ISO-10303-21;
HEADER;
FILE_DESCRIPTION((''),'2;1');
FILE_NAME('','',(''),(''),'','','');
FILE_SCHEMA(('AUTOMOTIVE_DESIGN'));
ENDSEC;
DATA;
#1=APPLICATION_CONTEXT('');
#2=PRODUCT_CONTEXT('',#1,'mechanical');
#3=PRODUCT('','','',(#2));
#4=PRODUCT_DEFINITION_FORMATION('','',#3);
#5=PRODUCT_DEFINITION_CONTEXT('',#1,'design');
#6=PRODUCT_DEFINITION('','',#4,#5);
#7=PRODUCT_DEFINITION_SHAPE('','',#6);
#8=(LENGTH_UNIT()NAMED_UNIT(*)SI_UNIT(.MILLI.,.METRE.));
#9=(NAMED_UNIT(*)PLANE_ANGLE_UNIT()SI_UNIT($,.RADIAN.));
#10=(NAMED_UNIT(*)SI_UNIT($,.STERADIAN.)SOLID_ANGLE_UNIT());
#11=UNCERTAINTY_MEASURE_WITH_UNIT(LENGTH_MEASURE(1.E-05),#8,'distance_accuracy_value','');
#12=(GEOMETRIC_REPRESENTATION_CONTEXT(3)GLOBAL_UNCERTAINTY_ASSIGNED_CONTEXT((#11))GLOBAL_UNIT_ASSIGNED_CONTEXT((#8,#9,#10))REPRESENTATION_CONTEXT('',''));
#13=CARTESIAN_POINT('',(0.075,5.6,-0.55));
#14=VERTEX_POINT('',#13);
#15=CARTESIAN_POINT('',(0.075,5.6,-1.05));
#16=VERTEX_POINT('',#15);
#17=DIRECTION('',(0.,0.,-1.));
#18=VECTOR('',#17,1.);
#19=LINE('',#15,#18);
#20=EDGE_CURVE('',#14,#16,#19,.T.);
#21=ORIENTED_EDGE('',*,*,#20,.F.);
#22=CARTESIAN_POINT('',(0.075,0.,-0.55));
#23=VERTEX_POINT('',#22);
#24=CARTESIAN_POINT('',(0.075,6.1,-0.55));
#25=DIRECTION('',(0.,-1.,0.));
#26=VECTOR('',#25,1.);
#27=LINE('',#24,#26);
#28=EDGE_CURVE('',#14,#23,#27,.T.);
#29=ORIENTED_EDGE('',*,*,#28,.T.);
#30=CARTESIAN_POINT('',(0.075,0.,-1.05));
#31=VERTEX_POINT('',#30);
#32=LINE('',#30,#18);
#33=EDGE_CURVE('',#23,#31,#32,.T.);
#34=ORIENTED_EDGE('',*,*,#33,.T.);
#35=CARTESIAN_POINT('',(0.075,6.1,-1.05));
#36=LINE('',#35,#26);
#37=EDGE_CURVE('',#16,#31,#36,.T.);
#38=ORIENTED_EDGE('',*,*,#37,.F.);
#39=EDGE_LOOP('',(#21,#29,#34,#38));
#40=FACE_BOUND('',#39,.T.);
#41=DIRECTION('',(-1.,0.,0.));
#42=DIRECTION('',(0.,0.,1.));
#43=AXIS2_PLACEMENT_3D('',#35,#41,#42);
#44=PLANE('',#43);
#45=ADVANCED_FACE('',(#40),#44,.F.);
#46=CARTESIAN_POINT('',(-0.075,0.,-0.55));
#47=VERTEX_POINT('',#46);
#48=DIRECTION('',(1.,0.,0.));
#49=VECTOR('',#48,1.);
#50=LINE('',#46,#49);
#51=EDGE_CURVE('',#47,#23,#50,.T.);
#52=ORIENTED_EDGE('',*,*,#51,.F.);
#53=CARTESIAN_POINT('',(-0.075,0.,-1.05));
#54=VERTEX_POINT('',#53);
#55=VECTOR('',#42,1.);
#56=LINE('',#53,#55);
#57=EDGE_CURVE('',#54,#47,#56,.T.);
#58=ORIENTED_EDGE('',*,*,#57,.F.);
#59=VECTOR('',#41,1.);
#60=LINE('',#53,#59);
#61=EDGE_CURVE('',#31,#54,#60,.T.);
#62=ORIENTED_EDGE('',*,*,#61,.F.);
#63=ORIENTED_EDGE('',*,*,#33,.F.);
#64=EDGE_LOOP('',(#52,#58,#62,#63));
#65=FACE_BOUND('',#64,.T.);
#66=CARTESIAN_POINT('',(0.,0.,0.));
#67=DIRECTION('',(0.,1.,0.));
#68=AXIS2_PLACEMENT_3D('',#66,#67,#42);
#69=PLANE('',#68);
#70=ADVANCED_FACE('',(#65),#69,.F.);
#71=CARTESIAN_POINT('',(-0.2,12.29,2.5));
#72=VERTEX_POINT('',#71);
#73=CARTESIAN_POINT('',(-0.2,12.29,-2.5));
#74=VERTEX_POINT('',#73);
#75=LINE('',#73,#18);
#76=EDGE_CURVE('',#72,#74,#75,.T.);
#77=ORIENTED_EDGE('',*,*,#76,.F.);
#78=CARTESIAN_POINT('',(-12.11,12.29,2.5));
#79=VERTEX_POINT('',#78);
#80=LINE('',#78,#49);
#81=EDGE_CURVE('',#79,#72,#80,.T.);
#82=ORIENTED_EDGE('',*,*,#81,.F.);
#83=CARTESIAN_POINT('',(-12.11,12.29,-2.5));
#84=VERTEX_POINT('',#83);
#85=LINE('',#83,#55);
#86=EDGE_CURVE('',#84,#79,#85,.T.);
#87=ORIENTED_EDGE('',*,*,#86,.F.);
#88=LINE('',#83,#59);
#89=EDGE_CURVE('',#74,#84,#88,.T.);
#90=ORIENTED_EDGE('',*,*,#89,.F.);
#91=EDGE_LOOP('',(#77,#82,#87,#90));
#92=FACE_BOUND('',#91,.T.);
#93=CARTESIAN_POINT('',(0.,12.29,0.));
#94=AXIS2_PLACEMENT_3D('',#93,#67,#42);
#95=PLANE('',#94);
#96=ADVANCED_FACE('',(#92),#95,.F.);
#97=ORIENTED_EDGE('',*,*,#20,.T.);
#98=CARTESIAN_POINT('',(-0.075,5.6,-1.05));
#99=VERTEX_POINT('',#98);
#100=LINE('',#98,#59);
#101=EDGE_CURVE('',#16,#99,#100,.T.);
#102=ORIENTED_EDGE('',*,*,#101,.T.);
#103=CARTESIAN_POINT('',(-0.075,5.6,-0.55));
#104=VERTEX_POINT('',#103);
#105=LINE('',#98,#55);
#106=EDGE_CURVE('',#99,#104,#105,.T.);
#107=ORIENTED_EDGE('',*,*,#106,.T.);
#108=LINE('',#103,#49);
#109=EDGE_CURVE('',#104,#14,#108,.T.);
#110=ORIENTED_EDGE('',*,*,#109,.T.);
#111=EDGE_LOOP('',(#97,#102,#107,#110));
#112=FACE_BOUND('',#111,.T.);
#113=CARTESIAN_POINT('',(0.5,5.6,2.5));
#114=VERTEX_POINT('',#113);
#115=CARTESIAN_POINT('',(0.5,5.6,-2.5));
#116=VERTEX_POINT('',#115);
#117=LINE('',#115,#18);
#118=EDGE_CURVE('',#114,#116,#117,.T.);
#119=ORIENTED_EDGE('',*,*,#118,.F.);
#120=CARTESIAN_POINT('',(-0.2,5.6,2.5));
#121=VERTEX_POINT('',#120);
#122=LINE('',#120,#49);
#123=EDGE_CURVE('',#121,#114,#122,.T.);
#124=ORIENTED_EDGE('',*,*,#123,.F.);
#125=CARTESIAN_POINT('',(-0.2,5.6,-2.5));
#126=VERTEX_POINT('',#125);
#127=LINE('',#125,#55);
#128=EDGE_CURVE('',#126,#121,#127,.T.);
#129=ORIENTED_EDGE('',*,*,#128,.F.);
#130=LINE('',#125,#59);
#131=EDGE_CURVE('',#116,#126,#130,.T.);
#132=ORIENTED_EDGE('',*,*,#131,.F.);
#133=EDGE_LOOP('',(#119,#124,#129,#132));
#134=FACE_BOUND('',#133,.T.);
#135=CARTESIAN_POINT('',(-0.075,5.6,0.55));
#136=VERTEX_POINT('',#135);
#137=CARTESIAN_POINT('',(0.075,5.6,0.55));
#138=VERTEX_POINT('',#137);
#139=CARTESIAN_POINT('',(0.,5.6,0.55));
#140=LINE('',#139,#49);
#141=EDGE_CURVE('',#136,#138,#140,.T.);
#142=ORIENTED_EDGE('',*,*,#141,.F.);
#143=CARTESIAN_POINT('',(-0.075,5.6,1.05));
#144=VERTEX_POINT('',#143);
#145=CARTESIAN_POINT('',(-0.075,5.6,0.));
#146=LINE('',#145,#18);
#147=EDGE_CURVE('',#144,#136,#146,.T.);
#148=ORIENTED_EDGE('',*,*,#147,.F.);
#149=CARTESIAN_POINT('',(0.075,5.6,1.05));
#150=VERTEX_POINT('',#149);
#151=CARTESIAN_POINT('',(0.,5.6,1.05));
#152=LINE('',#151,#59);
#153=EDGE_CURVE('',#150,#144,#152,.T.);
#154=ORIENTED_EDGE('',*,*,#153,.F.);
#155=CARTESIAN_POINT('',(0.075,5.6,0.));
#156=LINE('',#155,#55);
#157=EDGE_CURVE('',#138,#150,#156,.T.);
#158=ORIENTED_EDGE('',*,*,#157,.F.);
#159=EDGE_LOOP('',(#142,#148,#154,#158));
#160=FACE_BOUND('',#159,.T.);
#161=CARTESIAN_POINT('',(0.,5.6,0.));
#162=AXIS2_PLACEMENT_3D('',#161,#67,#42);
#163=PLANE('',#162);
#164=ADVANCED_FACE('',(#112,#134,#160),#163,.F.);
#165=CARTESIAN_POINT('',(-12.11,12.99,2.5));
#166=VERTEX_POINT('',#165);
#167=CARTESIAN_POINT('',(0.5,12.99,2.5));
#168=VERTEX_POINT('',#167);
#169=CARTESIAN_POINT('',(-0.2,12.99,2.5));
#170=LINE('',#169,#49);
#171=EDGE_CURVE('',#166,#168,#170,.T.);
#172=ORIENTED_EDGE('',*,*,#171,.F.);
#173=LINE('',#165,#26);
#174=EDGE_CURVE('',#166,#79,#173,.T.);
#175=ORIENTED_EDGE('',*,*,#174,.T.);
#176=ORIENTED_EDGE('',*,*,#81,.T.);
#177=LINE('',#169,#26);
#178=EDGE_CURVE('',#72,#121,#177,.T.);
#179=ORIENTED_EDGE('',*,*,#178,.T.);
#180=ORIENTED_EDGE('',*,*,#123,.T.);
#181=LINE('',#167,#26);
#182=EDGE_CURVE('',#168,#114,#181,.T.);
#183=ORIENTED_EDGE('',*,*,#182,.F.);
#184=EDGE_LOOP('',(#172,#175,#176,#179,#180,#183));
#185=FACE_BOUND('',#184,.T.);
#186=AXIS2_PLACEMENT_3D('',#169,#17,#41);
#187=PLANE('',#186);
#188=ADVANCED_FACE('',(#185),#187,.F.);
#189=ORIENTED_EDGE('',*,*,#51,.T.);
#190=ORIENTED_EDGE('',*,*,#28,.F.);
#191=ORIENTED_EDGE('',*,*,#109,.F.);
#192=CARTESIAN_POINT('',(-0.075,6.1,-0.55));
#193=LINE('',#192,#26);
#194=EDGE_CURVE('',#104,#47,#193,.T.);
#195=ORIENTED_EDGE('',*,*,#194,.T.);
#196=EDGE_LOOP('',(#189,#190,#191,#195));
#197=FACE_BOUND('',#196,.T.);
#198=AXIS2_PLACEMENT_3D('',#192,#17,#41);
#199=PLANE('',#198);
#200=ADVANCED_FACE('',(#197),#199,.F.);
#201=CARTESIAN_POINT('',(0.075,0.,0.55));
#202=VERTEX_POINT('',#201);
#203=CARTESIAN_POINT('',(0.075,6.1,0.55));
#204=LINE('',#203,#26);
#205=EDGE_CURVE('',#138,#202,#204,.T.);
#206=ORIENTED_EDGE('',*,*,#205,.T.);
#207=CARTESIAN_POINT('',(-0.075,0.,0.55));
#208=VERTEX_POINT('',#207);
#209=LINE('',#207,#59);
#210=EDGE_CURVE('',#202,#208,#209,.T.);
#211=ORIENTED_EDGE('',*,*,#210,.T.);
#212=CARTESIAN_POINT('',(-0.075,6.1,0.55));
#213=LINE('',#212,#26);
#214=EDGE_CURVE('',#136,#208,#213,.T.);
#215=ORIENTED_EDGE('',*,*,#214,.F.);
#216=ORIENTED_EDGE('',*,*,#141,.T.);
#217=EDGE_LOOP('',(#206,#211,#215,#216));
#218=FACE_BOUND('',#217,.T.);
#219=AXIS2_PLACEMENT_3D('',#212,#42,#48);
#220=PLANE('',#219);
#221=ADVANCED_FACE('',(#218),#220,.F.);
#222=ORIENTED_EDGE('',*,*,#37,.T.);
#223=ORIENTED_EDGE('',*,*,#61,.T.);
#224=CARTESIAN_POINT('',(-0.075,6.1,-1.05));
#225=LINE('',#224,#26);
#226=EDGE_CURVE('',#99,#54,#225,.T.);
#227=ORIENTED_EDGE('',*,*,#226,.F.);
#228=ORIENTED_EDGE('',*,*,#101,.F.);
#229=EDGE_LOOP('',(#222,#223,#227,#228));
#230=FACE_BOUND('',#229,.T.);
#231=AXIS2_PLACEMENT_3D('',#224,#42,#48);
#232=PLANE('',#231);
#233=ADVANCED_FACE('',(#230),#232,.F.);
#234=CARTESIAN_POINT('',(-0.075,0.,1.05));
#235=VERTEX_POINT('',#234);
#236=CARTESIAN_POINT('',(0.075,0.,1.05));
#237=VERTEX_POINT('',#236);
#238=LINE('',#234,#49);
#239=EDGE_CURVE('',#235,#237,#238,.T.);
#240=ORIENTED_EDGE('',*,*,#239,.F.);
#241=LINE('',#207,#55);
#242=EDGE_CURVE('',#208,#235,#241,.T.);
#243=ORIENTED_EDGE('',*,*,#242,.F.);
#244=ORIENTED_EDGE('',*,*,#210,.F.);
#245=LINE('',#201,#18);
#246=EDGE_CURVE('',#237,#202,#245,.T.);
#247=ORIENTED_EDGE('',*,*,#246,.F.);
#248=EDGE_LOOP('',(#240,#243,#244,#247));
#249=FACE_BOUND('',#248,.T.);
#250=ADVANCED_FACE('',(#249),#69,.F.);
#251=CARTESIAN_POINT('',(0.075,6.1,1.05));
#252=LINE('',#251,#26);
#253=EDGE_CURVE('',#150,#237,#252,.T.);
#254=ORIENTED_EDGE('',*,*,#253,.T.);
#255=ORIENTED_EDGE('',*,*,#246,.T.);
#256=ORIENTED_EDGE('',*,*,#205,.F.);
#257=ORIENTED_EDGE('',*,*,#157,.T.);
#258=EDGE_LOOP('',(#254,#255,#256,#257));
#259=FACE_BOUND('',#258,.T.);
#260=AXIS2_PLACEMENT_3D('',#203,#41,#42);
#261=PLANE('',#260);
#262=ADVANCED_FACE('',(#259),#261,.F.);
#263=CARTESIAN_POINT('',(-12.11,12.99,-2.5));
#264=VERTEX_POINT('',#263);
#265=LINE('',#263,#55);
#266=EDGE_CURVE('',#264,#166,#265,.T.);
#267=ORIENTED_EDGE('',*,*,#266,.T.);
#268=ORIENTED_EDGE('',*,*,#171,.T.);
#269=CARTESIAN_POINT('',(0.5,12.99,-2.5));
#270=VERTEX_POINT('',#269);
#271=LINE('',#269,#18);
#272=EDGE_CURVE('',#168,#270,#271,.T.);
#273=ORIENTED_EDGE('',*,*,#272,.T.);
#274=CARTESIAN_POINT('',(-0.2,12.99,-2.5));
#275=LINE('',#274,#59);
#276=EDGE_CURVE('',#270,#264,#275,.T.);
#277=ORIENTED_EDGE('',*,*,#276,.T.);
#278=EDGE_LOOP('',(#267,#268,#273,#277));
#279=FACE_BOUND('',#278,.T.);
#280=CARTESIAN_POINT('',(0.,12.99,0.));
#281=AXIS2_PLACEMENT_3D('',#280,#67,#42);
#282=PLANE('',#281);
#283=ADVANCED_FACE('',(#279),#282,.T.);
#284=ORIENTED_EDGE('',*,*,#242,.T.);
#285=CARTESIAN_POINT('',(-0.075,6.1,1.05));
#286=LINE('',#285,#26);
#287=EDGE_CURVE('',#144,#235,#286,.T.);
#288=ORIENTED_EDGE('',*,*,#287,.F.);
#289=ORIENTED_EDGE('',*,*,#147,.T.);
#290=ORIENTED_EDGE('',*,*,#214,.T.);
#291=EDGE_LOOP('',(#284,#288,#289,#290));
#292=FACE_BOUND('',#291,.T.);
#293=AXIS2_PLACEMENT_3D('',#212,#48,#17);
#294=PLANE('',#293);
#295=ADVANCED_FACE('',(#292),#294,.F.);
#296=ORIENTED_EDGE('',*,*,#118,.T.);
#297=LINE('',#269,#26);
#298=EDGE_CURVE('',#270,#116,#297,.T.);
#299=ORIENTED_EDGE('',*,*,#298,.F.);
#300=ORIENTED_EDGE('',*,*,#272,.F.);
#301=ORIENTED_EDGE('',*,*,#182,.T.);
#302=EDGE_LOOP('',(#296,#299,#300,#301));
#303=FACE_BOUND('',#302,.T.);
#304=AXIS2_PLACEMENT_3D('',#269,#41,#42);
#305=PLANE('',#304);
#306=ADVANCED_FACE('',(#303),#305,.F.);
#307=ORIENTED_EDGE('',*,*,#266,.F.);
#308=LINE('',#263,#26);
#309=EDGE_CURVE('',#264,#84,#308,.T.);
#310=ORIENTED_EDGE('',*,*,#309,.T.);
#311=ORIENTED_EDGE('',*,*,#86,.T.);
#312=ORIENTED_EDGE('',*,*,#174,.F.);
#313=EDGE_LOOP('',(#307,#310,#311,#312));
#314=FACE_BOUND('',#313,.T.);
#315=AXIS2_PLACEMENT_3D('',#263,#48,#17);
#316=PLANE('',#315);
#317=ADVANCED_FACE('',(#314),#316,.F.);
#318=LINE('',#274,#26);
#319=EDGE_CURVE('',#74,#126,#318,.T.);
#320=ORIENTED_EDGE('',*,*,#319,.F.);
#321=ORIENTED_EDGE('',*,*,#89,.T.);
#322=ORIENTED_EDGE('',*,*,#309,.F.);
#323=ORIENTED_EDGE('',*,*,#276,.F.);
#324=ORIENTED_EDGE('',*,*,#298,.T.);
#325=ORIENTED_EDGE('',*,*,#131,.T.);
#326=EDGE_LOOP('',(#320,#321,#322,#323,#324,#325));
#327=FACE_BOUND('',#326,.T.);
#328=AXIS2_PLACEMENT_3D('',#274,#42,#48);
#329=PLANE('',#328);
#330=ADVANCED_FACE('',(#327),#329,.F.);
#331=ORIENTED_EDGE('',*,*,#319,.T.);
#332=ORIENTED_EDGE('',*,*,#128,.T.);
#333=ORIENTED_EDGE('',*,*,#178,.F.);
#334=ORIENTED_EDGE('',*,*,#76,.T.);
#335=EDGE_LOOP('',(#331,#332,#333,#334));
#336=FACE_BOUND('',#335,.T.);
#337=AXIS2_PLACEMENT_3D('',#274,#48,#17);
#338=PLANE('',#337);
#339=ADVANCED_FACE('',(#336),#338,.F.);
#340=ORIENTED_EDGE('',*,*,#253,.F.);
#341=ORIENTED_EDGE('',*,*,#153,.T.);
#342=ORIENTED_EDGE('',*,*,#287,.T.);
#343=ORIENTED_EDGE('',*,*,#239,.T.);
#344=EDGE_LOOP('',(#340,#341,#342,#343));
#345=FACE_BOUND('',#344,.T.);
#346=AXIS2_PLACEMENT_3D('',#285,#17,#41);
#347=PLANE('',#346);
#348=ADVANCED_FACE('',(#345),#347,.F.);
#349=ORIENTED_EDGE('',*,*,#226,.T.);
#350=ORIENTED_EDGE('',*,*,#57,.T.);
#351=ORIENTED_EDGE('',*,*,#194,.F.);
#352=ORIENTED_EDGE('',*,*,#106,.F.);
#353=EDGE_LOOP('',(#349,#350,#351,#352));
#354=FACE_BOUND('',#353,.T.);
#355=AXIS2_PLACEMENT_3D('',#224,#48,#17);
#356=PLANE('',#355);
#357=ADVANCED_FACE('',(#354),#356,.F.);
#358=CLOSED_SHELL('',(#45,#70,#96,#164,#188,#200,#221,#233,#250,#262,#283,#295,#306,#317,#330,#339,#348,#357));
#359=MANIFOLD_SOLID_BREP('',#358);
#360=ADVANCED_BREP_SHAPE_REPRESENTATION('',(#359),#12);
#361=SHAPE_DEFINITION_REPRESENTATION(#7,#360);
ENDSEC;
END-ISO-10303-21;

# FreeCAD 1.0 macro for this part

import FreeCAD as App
import Part
import Sketcher
from FreeCAD import Vector
Q = App.Units.Quantity


def add_polygon(sketch, points):
    """Adds a closed chain of lines whose ends are joined by coincident constraints."""
    first, n = sketch.GeometryCount, len(points)
    for a, b in zip(points, points[1:] + points[:1]):
        sketch.addGeometry(Part.LineSegment(App.Vector(*a, 0), App.Vector(*b, 0)), False)
    for i in range(n):
        sketch.addConstraint(Sketcher.Constraint("Coincident", first + i, 2, first + (i + 1) % n, 1))

doc = App.newDocument("Part")
body = doc.addObject("PartDesign::Body", "Body")

sketch1 = body.newObject("Sketcher::SketchObject", "Sketch")
sketch1.AttachmentSupport = (doc.getObject("XZ_Plane"), [""])
sketch1.MapMode = "FlatFace"
add_polygon(sketch1, [(-0.075, -1.05), (-0.075, -0.55), (0.075, -0.55), (0.075, -1.05)])
sketch1.addConstraint(Sketcher.Constraint("Vertical", 0))
sketch1.addConstraint(Sketcher.Constraint("Horizontal", 1))
sketch1.addConstraint(Sketcher.Constraint("Vertical", 2))
sketch1.addConstraint(Sketcher.Constraint("Horizontal", 3))
sketch1.addConstraint(Sketcher.Constraint("DistanceY", 0, 1, 0, 2, Q("0.5 mm")))
sketch1.addConstraint(Sketcher.Constraint("DistanceX", 1, 1, 1, 2, Q("0.15 mm")))
sketch1.addConstraint(Sketcher.Constraint("DistanceY", 0, 2, -1, 1, Q("0.55 mm")))
sketch1.addConstraint(Sketcher.Constraint("DistanceX", 0, 2, -1, 1, Q("0.075 mm")))
pad1 = body.newObject("PartDesign::Pad", "Pad")
pad1.Profile = sketch1
pad1.Length = 6.1
pad1.Reversed = True
body2 = doc.addObject("PartDesign::Body", "Body001")

sketch2 = body2.newObject("Sketcher::SketchObject", "Sketch001")
sketch2.AttachmentSupport = (doc.getObject("XZ_Plane001"), [""])
sketch2.MapMode = "FlatFace"
add_polygon(sketch2, [(-0.075, 0.55), (-0.075, 1.05), (0.075, 1.05), (0.075, 0.55)])
sketch2.addConstraint(Sketcher.Constraint("Vertical", 0))
sketch2.addConstraint(Sketcher.Constraint("Horizontal", 1))
sketch2.addConstraint(Sketcher.Constraint("Vertical", 2))
sketch2.addConstraint(Sketcher.Constraint("Horizontal", 3))
sketch2.addConstraint(Sketcher.Constraint("DistanceY", 0, 1, 0, 2, Q("0.5 mm")))
sketch2.addConstraint(Sketcher.Constraint("DistanceX", 1, 1, 1, 2, Q("0.15 mm")))
sketch2.addConstraint(Sketcher.Constraint("DistanceY", -1, 1, 0, 2, Q("1.05 mm")))
sketch2.addConstraint(Sketcher.Constraint("DistanceX", 0, 2, -1, 1, Q("0.075 mm")))
pad2 = body2.newObject("PartDesign::Pad", "Pad001")
pad2.Profile = sketch2
pad2.Length = 6.1
pad2.Reversed = True
body.AllowCompound = True
doc.recompute()

boolean = body.newObject("PartDesign::Boolean", "Boolean")
boolean.Type = "Fuse"
boolean.addObjects([body2])

sketch3 = body.newObject("Sketcher::SketchObject", "Sketch002")
sketch3.AttachmentSupport = (doc.getObject("XZ_Plane"), [""])
sketch3.MapMode = "FlatFace"
sketch3.AttachmentOffset = App.Placement(Vector(0, 0, -5.6), App.Rotation())
add_polygon(sketch3, [(-0.2, -2.5), (-0.2, 2.5), (0.5, 2.5), (0.5, -2.5)])
sketch3.addConstraint(Sketcher.Constraint("Vertical", 0))
sketch3.addConstraint(Sketcher.Constraint("Horizontal", 1))
sketch3.addConstraint(Sketcher.Constraint("Vertical", 2))
sketch3.addConstraint(Sketcher.Constraint("Horizontal", 3))
sketch3.addConstraint(Sketcher.Constraint("DistanceY", 0, 1, 0, 2, Q("5 mm")))
sketch3.addConstraint(Sketcher.Constraint("DistanceX", 1, 1, 1, 2, Q("0.7 mm")))
sketch3.addConstraint(Sketcher.Constraint("DistanceX", 0, 2, -1, 1, Q("0.2 mm")))
sketch3.addConstraint(Sketcher.Constraint("DistanceY", -1, 1, 0, 2, Q("2.5 mm")))
pad3 = body.newObject("PartDesign::Pad", "Pad002")
pad3.Profile = sketch3
pad3.Length = 7.39
pad3.Reversed = True

sketch4 = body.newObject("Sketcher::SketchObject", "Sketch003")
sketch4.AttachmentSupport = (doc.getObject("XZ_Plane"), [""])
sketch4.MapMode = "FlatFace"
sketch4.AttachmentOffset = App.Placement(Vector(0, 0, -12.29), App.Rotation())
add_polygon(sketch4, [(-12.11, -2.5), (-12.11, 2.5), (-0.2, 2.5), (-0.2, -2.5)])
sketch4.addConstraint(Sketcher.Constraint("Vertical", 0))
sketch4.addConstraint(Sketcher.Constraint("Horizontal", 1))
sketch4.addConstraint(Sketcher.Constraint("Vertical", 2))
sketch4.addConstraint(Sketcher.Constraint("Horizontal", 3))
sketch4.addConstraint(Sketcher.Constraint("DistanceY", 0, 1, 0, 2, Q("5 mm")))
sketch4.addConstraint(Sketcher.Constraint("DistanceX", 1, 1, 1, 2, Q("11.91 mm")))
sketch4.addConstraint(Sketcher.Constraint("DistanceY", -1, 1, 0, 2, Q("2.5 mm")))
sketch4.addConstraint(Sketcher.Constraint("DistanceX", 1, 2, -1, 1, Q("0.2 mm")))
pad4 = body.newObject("PartDesign::Pad", "Pad003")
pad4.Profile = sketch4
pad4.Length = 0.7
pad4.Reversed = True

doc.recompute()
